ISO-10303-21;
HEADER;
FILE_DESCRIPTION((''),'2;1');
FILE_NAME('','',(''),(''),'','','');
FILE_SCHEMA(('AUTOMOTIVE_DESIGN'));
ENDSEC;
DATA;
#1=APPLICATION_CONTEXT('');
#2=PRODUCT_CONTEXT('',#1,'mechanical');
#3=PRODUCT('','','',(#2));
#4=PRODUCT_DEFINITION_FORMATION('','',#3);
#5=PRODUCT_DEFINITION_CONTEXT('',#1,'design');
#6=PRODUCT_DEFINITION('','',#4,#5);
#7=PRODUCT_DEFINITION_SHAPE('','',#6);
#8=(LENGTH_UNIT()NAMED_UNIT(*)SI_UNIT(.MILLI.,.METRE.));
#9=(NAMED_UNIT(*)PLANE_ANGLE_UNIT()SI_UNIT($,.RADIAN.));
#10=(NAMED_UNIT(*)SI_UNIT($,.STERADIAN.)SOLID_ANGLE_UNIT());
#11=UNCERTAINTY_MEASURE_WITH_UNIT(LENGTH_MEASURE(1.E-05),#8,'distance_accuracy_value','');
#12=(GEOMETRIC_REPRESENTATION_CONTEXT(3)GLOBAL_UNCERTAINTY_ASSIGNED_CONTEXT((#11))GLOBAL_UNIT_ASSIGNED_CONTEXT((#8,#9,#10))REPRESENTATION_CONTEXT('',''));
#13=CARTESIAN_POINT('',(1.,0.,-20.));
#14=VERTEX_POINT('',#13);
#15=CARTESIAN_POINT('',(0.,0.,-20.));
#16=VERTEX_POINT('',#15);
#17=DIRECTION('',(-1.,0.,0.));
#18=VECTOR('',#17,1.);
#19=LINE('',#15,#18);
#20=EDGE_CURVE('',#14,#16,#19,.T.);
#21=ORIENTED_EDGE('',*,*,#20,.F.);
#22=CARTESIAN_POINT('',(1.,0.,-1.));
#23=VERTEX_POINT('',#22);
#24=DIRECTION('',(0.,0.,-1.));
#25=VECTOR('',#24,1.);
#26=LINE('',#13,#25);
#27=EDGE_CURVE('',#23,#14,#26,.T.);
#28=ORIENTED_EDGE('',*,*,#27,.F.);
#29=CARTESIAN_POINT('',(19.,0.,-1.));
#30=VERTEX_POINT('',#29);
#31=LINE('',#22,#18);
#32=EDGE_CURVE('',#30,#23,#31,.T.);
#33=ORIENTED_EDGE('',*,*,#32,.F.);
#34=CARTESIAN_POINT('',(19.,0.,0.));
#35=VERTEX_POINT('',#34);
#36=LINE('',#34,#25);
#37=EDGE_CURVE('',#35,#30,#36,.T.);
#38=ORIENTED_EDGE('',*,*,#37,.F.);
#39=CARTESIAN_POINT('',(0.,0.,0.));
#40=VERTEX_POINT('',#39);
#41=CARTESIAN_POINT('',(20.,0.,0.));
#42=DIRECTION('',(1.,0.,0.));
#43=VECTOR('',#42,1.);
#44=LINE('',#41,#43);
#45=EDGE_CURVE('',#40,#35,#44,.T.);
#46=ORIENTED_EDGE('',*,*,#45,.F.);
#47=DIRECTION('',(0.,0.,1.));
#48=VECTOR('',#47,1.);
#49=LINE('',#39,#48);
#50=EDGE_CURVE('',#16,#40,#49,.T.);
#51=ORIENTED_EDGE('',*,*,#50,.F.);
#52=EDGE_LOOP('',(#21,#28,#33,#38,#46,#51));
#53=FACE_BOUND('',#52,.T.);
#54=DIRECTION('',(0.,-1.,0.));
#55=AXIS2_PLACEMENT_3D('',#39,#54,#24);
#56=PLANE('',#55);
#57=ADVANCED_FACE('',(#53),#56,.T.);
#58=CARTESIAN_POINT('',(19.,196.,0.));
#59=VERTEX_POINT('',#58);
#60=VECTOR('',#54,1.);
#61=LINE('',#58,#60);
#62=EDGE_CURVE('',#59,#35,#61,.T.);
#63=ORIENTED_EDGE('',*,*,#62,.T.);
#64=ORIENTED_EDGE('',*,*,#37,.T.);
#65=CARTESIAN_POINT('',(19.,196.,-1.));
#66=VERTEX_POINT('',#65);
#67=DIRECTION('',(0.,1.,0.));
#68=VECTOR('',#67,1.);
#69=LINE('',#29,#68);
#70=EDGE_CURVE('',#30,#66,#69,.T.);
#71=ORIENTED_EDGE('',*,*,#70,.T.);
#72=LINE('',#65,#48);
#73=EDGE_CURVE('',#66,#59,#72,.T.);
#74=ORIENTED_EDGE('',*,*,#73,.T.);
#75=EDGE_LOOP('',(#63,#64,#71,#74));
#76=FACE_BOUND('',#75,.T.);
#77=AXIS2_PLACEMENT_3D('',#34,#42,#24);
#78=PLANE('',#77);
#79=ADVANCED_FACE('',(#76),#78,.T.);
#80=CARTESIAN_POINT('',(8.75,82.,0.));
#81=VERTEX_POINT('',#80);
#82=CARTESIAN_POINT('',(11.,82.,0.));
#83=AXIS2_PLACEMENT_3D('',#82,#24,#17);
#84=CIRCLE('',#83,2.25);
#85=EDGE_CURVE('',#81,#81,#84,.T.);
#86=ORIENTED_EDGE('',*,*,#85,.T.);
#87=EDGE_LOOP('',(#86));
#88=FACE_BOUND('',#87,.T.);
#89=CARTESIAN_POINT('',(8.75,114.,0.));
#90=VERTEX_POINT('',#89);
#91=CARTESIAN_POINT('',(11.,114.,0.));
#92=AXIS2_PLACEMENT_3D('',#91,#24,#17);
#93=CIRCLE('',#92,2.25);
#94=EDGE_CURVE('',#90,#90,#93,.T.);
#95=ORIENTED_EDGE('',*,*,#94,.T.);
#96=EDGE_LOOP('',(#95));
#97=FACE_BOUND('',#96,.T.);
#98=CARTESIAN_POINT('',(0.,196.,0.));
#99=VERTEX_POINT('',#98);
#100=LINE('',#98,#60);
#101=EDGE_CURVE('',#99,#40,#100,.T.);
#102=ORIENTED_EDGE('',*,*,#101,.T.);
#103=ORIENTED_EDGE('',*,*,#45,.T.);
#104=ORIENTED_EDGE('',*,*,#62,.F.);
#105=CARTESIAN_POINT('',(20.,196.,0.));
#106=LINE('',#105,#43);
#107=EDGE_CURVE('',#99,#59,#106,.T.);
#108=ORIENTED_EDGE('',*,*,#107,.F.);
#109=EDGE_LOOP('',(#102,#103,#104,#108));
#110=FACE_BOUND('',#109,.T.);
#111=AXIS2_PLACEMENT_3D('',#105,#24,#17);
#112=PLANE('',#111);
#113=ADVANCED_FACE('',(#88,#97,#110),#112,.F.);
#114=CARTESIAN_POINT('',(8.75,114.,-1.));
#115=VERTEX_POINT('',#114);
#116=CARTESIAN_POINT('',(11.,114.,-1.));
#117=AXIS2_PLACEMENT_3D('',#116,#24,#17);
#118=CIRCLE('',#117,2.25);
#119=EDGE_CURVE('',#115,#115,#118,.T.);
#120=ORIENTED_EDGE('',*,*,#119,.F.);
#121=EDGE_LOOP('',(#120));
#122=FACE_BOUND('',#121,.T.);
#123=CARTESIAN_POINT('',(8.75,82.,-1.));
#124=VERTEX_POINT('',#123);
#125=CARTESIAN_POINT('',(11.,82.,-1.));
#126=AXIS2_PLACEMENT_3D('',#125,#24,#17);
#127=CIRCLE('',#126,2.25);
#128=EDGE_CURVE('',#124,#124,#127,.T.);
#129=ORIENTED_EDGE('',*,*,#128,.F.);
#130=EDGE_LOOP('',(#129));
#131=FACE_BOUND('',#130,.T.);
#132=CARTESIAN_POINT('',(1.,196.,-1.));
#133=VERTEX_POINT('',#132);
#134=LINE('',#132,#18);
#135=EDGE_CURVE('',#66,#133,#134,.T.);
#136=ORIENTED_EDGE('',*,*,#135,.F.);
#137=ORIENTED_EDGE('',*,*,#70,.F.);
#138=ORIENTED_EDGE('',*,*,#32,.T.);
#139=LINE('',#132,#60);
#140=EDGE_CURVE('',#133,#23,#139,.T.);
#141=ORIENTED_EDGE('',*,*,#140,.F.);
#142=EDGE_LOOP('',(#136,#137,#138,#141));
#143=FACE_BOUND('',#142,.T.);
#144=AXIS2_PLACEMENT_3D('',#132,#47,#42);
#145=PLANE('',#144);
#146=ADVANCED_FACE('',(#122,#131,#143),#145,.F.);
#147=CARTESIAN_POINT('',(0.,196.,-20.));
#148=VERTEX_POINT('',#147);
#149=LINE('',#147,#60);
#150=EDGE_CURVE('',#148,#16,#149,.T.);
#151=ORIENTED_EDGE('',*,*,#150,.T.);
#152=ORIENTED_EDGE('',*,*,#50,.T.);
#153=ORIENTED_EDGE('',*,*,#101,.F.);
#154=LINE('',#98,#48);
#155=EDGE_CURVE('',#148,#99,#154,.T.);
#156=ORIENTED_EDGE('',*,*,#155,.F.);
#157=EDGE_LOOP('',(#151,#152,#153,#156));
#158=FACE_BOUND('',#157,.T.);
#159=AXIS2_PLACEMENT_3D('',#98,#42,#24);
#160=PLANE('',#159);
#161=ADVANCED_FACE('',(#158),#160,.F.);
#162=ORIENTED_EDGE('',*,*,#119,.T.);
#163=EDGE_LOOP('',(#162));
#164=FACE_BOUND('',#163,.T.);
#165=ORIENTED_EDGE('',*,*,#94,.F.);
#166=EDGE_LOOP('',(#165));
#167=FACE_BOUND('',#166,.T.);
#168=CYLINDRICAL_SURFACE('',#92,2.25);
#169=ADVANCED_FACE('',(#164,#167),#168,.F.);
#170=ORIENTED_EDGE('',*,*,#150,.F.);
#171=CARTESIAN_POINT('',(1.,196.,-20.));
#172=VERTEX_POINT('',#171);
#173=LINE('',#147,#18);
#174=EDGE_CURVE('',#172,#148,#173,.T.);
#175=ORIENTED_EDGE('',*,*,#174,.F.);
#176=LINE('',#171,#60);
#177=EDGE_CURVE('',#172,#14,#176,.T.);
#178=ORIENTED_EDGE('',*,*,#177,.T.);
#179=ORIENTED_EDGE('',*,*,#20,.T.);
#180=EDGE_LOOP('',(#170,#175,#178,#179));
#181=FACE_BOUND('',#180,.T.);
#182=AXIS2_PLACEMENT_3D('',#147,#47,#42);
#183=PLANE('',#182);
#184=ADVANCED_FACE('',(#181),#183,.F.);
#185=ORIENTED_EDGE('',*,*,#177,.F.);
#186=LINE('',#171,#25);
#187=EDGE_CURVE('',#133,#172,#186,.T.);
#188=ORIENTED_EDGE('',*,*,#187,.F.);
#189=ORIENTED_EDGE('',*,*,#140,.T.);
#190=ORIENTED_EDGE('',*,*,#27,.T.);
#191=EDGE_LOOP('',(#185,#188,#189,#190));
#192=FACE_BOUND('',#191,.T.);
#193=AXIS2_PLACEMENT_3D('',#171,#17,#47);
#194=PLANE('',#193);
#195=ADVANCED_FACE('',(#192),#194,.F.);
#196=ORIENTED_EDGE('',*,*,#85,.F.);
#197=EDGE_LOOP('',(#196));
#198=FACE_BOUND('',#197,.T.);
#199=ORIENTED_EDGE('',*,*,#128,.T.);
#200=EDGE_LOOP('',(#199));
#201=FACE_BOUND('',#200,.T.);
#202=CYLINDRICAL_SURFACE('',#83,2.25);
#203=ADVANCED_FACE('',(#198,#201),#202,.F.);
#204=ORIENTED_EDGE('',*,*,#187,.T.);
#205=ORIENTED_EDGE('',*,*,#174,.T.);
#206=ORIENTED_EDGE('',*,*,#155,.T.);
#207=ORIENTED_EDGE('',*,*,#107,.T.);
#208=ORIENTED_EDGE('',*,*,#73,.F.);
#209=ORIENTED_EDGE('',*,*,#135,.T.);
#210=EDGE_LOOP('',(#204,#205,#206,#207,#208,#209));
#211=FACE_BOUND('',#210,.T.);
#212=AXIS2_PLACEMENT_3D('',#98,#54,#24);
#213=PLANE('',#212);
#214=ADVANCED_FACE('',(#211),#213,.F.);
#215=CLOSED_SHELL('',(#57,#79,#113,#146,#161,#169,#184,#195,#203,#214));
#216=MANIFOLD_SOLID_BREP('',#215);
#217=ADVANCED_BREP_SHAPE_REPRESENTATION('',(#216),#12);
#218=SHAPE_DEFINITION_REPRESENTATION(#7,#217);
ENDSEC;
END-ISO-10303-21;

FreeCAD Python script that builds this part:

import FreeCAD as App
import Part
import Sketcher
Q = App.Units.Quantity

doc = App.newDocument("Part")
body = doc.addObject("PartDesign::Body", "Body")

# Sketch on XZ plane
sketch1 = body.newObject("Sketcher::SketchObject", "Sketch")
sketch1.AttachmentSupport = (doc.getObject("XZ_Plane"), [""])
sketch1.MapMode = "FlatFace"
sketch1.addGeometry(Part.LineSegment(App.Vector(0, -20, 0), App.Vector(0, 0, 0)), False)
sketch1.addGeometry(Part.LineSegment(App.Vector(0, 0, 0), App.Vector(20, 0, 0)), False)
sketch1.addGeometry(Part.LineSegment(App.Vector(20, 0, 0), App.Vector(20, -1, 0)), False)
sketch1.addGeometry(Part.LineSegment(App.Vector(20, -1, 0), App.Vector(1, -1, 0)), False)
sketch1.addGeometry(Part.LineSegment(App.Vector(1, -1, 0), App.Vector(1, -20, 0)), False)
sketch1.addGeometry(Part.LineSegment(App.Vector(1, -20, 0), App.Vector(0, -20, 0)), False)
sketch1.addConstraint(Sketcher.Constraint("Coincident", 0, 2, 1, 1))
sketch1.addConstraint(Sketcher.Constraint("Coincident", 1, 2, 2, 1))
sketch1.addConstraint(Sketcher.Constraint("Coincident", 2, 2, 3, 1))
sketch1.addConstraint(Sketcher.Constraint("Coincident", 3, 2, 4, 1))
sketch1.addConstraint(Sketcher.Constraint("Coincident", 4, 2, 5, 1))
sketch1.addConstraint(Sketcher.Constraint("Coincident", 5, 2, 0, 1))
sketch1.addConstraint(Sketcher.Constraint("Vertical", 0))
sketch1.addConstraint(Sketcher.Constraint("Horizontal", 1))
sketch1.addConstraint(Sketcher.Constraint("Vertical", 2))
sketch1.addConstraint(Sketcher.Constraint("Horizontal", 3))
sketch1.addConstraint(Sketcher.Constraint("Vertical", 4))
sketch1.addConstraint(Sketcher.Constraint("Horizontal", 5))
sketch1.addConstraint(Sketcher.Constraint("Coincident", 0, 2, -1, 1))
sketch1.addConstraint(Sketcher.Constraint("Equal", 1, 0))
sketch1.addConstraint(Sketcher.Constraint("Equal", 5, 2))
sketch1.addConstraint(Sketcher.Constraint("DistanceX", 1, 1, 1, 2, Q("20 mm")))
sketch1.addConstraint(Sketcher.Constraint("DistanceX", 3, 2, 3, 1, Q("19 mm")))
pad1 = body.newObject("PartDesign::Pad", "Pad")
pad1.Profile = sketch1
pad1.Length = 196
pad1.Reversed = True

# Sketch on YZ plane
sketch2 = body.newObject("Sketcher::SketchObject", "Sketch001")
sketch2.AttachmentSupport = (doc.getObject("YZ_Plane"), [""])
sketch2.MapMode = "FlatFace"
sketch2.AttachmentOffset = App.Placement(App.Vector(0, 0, 20), App.Rotation())
sketch2.addGeometry(Part.LineSegment(App.Vector(196, 0, 0), App.Vector(0, 0, 0)), False)
sketch2.addGeometry(Part.LineSegment(App.Vector(0, 0, 0), App.Vector(0, -1, 0)), False)
sketch2.addGeometry(Part.LineSegment(App.Vector(0, -1, 0), App.Vector(196, -1, 0)), False)
sketch2.addGeometry(Part.LineSegment(App.Vector(196, -1, 0), App.Vector(196, 0, 0)), False)
sketch2.addConstraint(Sketcher.Constraint("Coincident", 0, 2, 1, 1))
sketch2.addConstraint(Sketcher.Constraint("Coincident", 1, 2, 2, 1))
sketch2.addConstraint(Sketcher.Constraint("Coincident", 2, 2, 3, 1))
sketch2.addConstraint(Sketcher.Constraint("Coincident", 3, 2, 0, 1))
sketch2.addConstraint(Sketcher.Constraint("Horizontal", 0))
sketch2.addConstraint(Sketcher.Constraint("Vertical", 1))
sketch2.addConstraint(Sketcher.Constraint("Horizontal", 2))
sketch2.addConstraint(Sketcher.Constraint("Vertical", 3))
sketch2.addConstraint(Sketcher.Constraint("Coincident", 0, 2, -1, 1))
sketch2.addConstraint(Sketcher.Constraint("DistanceX", 0, 2, 0, 1, Q("196 mm")))
sketch2.addConstraint(Sketcher.Constraint("DistanceY", 1, 2, 1, 1, Q("1 mm")))
pocket1 = body.newObject("PartDesign::Pocket", "Pocket")
pocket1.Profile = sketch2
pocket1.Length = 1

# Sketch on XY plane
sketch3 = body.newObject("Sketcher::SketchObject", "Sketch002")
sketch3.AttachmentSupport = (doc.getObject("XY_Plane"), [""])
sketch3.MapMode = "FlatFace"
sketch3.AttachmentOffset = App.Placement(App.Vector(0, 0, -1), App.Rotation())
sketch3.addGeometry(Part.Circle(App.Vector(11, 82, 0), App.Vector(0, 0, 1), 2.2), False)
sketch3.addGeometry(Part.Circle(App.Vector(11, 114, 0), App.Vector(0, 0, 1), 2.2), False)
sketch3.addConstraint(Sketcher.Constraint("Equal", 0, 1))
sketch3.addConstraint(Sketcher.Constraint("Vertical", 0, 3, 1, 3))
sketch3.addConstraint(Sketcher.Constraint("Diameter", 0, Q("4.5 mm")))
sketch3.addConstraint(Sketcher.Constraint("DistanceX", -1, 1, 0, 3, Q("11 mm")))
sketch3.addConstraint(Sketcher.Constraint("DistanceY", -1, 1, 0, 3, Q("82 mm")))
sketch3.addConstraint(Sketcher.Constraint("DistanceY", -1, 1, 1, 3, Q("114 mm")))
pocket2 = body.newObject("PartDesign::Pocket", "Pocket001")
pocket2.Profile = sketch3
pocket2.Type = "ThroughAll"
pocket2.Reversed = True

doc.recompute()
